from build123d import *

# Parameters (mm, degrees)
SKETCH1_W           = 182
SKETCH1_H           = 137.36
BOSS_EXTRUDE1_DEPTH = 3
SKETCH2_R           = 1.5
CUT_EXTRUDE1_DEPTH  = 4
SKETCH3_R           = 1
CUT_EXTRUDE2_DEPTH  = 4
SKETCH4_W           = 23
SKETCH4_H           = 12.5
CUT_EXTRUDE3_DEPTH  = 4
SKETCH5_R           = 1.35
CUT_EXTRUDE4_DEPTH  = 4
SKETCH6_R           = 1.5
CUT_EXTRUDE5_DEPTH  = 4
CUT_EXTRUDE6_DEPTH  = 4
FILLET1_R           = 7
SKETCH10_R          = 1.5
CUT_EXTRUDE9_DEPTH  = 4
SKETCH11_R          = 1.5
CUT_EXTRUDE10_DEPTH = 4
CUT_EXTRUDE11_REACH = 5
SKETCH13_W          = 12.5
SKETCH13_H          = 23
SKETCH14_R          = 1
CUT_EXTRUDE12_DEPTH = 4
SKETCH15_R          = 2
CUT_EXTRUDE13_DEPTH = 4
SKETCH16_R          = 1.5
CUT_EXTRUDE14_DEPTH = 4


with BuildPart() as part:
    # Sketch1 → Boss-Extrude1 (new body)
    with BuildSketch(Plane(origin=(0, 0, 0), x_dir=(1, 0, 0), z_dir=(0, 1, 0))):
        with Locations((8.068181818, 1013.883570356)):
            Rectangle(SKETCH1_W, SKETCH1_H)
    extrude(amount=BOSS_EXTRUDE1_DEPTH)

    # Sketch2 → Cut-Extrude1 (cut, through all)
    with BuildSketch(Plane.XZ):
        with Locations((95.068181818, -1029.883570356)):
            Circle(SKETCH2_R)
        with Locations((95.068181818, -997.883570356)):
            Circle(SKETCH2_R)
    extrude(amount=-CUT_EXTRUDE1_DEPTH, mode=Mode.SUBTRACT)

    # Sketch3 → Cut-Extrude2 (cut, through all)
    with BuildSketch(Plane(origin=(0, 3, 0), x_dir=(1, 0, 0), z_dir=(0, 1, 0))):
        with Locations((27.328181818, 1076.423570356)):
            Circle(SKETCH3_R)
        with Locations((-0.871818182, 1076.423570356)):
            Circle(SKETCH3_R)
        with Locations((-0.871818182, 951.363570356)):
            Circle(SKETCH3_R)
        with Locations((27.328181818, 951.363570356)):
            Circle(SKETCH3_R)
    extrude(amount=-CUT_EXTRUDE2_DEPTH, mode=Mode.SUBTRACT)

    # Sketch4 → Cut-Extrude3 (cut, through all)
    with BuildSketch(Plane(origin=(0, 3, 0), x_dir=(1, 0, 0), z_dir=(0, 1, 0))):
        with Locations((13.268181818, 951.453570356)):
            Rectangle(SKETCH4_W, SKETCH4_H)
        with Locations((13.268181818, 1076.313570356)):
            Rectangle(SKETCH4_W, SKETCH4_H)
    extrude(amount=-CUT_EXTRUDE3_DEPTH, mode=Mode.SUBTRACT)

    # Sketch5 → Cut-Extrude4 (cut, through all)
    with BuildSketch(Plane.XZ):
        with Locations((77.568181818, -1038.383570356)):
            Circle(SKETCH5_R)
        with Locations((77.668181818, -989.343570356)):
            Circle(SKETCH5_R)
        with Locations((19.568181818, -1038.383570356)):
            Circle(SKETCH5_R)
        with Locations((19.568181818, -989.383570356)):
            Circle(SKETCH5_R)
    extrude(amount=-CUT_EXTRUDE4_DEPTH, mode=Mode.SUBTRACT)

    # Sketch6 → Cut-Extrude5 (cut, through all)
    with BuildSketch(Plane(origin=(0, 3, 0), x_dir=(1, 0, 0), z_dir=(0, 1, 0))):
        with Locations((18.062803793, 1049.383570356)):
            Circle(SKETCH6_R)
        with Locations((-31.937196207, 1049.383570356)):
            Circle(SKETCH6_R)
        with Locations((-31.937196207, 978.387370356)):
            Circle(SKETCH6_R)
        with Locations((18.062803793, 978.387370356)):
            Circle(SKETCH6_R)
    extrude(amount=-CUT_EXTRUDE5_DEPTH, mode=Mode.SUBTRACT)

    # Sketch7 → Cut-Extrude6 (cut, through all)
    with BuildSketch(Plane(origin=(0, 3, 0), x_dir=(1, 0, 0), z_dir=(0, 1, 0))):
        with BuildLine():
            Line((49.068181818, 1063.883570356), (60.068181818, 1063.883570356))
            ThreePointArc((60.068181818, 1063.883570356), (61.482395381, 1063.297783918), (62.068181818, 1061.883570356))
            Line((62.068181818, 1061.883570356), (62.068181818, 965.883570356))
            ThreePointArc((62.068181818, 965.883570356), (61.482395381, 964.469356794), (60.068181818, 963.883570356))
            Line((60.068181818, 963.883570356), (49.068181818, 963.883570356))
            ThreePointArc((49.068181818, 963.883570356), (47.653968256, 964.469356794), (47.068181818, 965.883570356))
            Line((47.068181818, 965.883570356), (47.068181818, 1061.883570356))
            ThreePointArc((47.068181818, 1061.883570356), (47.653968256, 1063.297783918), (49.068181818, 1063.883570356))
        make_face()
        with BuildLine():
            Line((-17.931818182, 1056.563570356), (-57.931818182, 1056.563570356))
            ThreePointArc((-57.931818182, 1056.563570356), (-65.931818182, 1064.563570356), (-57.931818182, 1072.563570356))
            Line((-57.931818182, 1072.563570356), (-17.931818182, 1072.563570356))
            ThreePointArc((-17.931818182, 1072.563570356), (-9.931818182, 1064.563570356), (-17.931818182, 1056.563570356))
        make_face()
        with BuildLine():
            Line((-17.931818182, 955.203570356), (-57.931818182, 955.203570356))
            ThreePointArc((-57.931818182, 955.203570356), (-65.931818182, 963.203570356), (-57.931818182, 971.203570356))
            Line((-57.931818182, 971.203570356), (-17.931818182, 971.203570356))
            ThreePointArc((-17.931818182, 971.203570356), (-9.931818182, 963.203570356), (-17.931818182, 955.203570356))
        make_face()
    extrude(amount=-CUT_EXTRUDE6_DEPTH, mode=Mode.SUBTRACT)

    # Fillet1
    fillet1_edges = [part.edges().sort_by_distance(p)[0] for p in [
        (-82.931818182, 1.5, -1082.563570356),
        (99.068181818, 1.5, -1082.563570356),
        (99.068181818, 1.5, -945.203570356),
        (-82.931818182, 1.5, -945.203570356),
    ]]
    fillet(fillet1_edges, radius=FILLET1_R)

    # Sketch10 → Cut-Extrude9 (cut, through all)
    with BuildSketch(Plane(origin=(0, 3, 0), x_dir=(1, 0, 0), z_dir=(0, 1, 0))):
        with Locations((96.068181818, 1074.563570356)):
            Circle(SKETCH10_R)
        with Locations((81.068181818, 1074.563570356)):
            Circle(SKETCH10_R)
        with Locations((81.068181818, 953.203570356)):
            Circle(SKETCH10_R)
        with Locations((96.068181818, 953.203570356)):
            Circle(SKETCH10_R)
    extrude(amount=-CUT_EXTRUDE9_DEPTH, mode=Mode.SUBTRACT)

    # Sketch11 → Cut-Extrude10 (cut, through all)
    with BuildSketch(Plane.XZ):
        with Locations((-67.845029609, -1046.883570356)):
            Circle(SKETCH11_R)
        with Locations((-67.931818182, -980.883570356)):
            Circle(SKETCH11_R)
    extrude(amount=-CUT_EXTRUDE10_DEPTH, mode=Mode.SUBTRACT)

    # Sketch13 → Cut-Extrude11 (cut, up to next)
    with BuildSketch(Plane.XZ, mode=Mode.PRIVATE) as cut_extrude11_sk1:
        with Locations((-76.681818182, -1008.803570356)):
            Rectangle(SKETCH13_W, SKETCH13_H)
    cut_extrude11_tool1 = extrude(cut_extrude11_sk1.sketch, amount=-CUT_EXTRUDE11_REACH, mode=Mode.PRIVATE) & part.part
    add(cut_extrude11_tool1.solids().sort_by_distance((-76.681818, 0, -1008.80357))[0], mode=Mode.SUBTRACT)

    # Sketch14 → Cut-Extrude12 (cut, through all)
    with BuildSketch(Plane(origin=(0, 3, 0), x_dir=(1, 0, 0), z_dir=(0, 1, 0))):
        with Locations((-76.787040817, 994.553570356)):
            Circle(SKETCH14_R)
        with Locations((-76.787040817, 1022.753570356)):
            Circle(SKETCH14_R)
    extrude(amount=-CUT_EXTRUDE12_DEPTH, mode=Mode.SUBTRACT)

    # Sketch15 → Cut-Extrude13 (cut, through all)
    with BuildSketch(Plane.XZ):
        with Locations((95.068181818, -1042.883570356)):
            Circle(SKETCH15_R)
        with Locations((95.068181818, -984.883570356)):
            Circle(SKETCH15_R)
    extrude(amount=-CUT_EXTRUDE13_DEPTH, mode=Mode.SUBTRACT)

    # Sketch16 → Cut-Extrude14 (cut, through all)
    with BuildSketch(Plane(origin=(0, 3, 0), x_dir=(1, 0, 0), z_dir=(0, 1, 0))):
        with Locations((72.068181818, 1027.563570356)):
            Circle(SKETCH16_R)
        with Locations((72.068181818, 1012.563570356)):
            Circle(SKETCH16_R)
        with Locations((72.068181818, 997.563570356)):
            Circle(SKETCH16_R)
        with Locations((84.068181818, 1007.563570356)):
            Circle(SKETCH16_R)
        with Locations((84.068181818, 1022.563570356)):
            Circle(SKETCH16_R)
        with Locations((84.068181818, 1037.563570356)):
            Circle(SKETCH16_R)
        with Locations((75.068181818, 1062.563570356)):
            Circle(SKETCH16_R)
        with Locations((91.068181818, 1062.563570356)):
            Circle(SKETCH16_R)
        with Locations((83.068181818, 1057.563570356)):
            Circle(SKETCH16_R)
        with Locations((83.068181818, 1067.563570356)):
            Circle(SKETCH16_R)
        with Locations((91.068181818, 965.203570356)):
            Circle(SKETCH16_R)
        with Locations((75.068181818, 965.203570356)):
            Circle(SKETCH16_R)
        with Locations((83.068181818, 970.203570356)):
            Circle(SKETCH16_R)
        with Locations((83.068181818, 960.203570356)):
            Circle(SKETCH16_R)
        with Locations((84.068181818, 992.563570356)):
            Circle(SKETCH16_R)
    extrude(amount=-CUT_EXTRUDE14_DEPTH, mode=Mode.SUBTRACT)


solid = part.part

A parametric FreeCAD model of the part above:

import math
import FreeCAD as App
import Part
import Sketcher

V = App.Vector


def edges_at(feature, points):
    """Names of the edges that pass closest to the given points."""
    edges = feature.Shape.Edges
    near = lambda p: min(range(len(edges)), key=lambda i: edges[i].distToShape(Part.Vertex(*p))[0])
    return sorted({f"Edge{near(p) + 1}" for p in points})

doc = App.newDocument("Part")
body = doc.addObject("PartDesign::Body", "Body")

sketch1 = body.newObject("Sketcher::SketchObject", "Sketch")
sketch1.AttachmentSupport = (doc.getObject("XZ_Plane"), [""])
sketch1.MapMode = "FlatFace"
sketch1.addGeometry(Part.LineSegment(V(-83, -1083, 0), V(-83, -945, 0)), False)
sketch1.addGeometry(Part.LineSegment(V(-83, -945, 0), V(99, -945, 0)), False)
sketch1.addGeometry(Part.LineSegment(V(99, -945, 0), V(99, -1083, 0)), False)
sketch1.addGeometry(Part.LineSegment(V(99, -1083, 0), V(-83, -1083, 0)), False)
sketch1.addConstraint(Sketcher.Constraint("Coincident", 0, 2, 1, 1))
sketch1.addConstraint(Sketcher.Constraint("Coincident", 1, 2, 2, 1))
sketch1.addConstraint(Sketcher.Constraint("Coincident", 2, 2, 3, 1))
sketch1.addConstraint(Sketcher.Constraint("Coincident", 3, 2, 0, 1))
sketch1.addConstraint(Sketcher.Constraint("Vertical", 0))
sketch1.addConstraint(Sketcher.Constraint("Horizontal", 1))
sketch1.addConstraint(Sketcher.Constraint("Vertical", 2))
sketch1.addConstraint(Sketcher.Constraint("Horizontal", 3))
sketch1.addConstraint(Sketcher.Constraint("DistanceX", 1, 1, 1, 2, 182.0))
sketch1.addConstraint(Sketcher.Constraint("DistanceY", 0, 1, 0, 2, 137.36))
sketch1.addConstraint(Sketcher.Constraint("DistanceX", 0, 2, -1, 1, 82.931818))
sketch1.addConstraint(Sketcher.Constraint("DistanceY", 0, 2, -1, 1, 945.20357))
pad1 = body.newObject("PartDesign::Pad", "Pad")
pad1.Profile = sketch1
pad1.Length = 3
pad1.Reversed = True

sketch2 = body.newObject("Sketcher::SketchObject", "Sketch001")
sketch2.AttachmentSupport = (doc.getObject("XZ_Plane"), [""])
sketch2.MapMode = "FlatFace"
sketch2.addGeometry(Part.Circle(V(95.1, -1029.9, 0), V(0, 0, 1), 1.5), False)
sketch2.addGeometry(Part.Circle(V(95.1, -997.9, 0), V(0, 0, 1), 1.5), False)
sketch2.addConstraint(Sketcher.Constraint("Equal", 0, 1))
sketch2.addConstraint(Sketcher.Constraint("Vertical", 0, 3, 1, 3))
sketch2.addConstraint(Sketcher.Constraint("Diameter", 0, 3.0))
sketch2.addConstraint(Sketcher.Constraint("DistanceY", 0, 3, 1, 3, 32.0))
sketch2.addConstraint(Sketcher.Constraint("DistanceX", -1, 1, 0, 3, 95.068182))
sketch2.addConstraint(Sketcher.Constraint("DistanceY", 0, 3, -1, 1, 1029.88357))
pocket1 = body.newObject("PartDesign::Pocket", "Pocket")
pocket1.Profile = sketch2
pocket1.Type = "ThroughAll"

sketch3 = body.newObject("Sketcher::SketchObject", "Sketch002")
sketch3.AttachmentSupport = (doc.getObject("XZ_Plane"), [""])
sketch3.MapMode = "FlatFace"
sketch3.AttachmentOffset = App.Placement(V(0, 0, -3), App.Rotation())
sketch3.addGeometry(Part.Circle(V(27.3, -1076.4, 0), V(0, 0, 1), 1), False)
sketch3.addGeometry(Part.Circle(V(-0.9, -1076.4, 0), V(0, 0, 1), 1), False)
sketch3.addGeometry(Part.Circle(V(-0.9, -951.4, 0), V(0, 0, 1), 1), False)
sketch3.addGeometry(Part.Circle(V(27.3, -951.4, 0), V(0, 0, 1), 1), False)
sketch3.addConstraint(Sketcher.Constraint("Equal", 0, 1))
sketch3.addConstraint(Sketcher.Constraint("Equal", 1, 2))
sketch3.addConstraint(Sketcher.Constraint("Equal", 2, 3))
sketch3.addConstraint(Sketcher.Constraint("Horizontal", 0, 3, 1, 3))
sketch3.addConstraint(Sketcher.Constraint("Horizontal", 2, 3, 3, 3))
sketch3.addConstraint(Sketcher.Constraint("Vertical", 1, 3, 2, 3))
sketch3.addConstraint(Sketcher.Constraint("Vertical", 0, 3, 3, 3))
sketch3.addConstraint(Sketcher.Constraint("Diameter", 0, 2.0))
sketch3.addConstraint(Sketcher.Constraint("DistanceX", 1, 3, 0, 3, 28.2))
sketch3.addConstraint(Sketcher.Constraint("DistanceY", 1, 3, 2, 3, 125.06))
sketch3.addConstraint(Sketcher.Constraint("DistanceX", -1, 1, 0, 3, 27.328182))
sketch3.addConstraint(Sketcher.Constraint("DistanceY", 0, 3, -1, 1, 1076.42357))
pocket2 = body.newObject("PartDesign::Pocket", "Pocket001")
pocket2.Profile = sketch3
pocket2.Type = "ThroughAll"
pocket2.Reversed = True

sketch4 = body.newObject("Sketcher::SketchObject", "Sketch003")
sketch4.AttachmentSupport = (doc.getObject("XZ_Plane"), [""])
sketch4.MapMode = "FlatFace"
sketch4.AttachmentOffset = App.Placement(V(0, 0, -3), App.Rotation())
sketch4.addGeometry(Part.LineSegment(V(2, -958, 0), V(2, -945, 0)), False)
sketch4.addGeometry(Part.LineSegment(V(2, -945, 0), V(25, -945, 0)), False)
sketch4.addGeometry(Part.LineSegment(V(25, -945, 0), V(25, -958, 0)), False)
sketch4.addGeometry(Part.LineSegment(V(25, -958, 0), V(2, -958, 0)), False)
sketch4.addGeometry(Part.LineSegment(V(2, -1083, 0), V(2, -1070, 0)), False)
sketch4.addGeometry(Part.LineSegment(V(2, -1070, 0), V(25, -1070, 0)), False)
sketch4.addGeometry(Part.LineSegment(V(25, -1070, 0), V(25, -1083, 0)), False)
sketch4.addGeometry(Part.LineSegment(V(25, -1083, 0), V(2, -1083, 0)), False)
sketch4.addConstraint(Sketcher.Constraint("Coincident", 0, 2, 1, 1))
sketch4.addConstraint(Sketcher.Constraint("Coincident", 1, 2, 2, 1))
sketch4.addConstraint(Sketcher.Constraint("Coincident", 2, 2, 3, 1))
sketch4.addConstraint(Sketcher.Constraint("Coincident", 3, 2, 0, 1))
sketch4.addConstraint(Sketcher.Constraint("Coincident", 4, 2, 5, 1))
sketch4.addConstraint(Sketcher.Constraint("Coincident", 5, 2, 6, 1))
sketch4.addConstraint(Sketcher.Constraint("Coincident", 6, 2, 7, 1))
sketch4.addConstraint(Sketcher.Constraint("Coincident", 7, 2, 4, 1))
sketch4.addConstraint(Sketcher.Constraint("Vertical", 0))
sketch4.addConstraint(Sketcher.Constraint("Horizontal", 1))
sketch4.addConstraint(Sketcher.Constraint("Vertical", 2))
sketch4.addConstraint(Sketcher.Constraint("Horizontal", 3))
sketch4.addConstraint(Sketcher.Constraint("Vertical", 4))
sketch4.addConstraint(Sketcher.Constraint("Horizontal", 5))
sketch4.addConstraint(Sketcher.Constraint("Vertical", 6))
sketch4.addConstraint(Sketcher.Constraint("Horizontal", 7))
sketch4.addConstraint(Sketcher.Constraint("Vertical", 3, 2, 4, 2))
sketch4.addConstraint(Sketcher.Constraint("Vertical", 2, 2, 5, 2))
sketch4.addConstraint(Sketcher.Constraint("Equal", 2, 4))
sketch4.addConstraint(Sketcher.Constraint("DistanceX", 1, 1, 1, 2, 23.0))
sketch4.addConstraint(Sketcher.Constraint("DistanceY", 0, 1, 0, 2, 12.5))
sketch4.addConstraint(Sketcher.Constraint("DistanceY", 4, 2, 3, 2, 112.36))
sketch4.addConstraint(Sketcher.Constraint("DistanceX", -1, 1, 0, 2, 1.768182))
sketch4.addConstraint(Sketcher.Constraint("DistanceY", 0, 2, -1, 1, 945.20357))
pocket3 = body.newObject("PartDesign::Pocket", "Pocket002")
pocket3.Profile = sketch4
pocket3.Type = "ThroughAll"
pocket3.Reversed = True

sketch5 = body.newObject("Sketcher::SketchObject", "Sketch004")
sketch5.AttachmentSupport = (doc.getObject("XZ_Plane"), [""])
sketch5.MapMode = "FlatFace"
sketch5.addGeometry(Part.Circle(V(77.6, -1038.4, 0), V(0, 0, 1), 1.4), False)
sketch5.addGeometry(Part.Circle(V(77.7, -989.3, 0), V(0, 0, 1), 1.4), False)
sketch5.addGeometry(Part.Circle(V(19.6, -1038.4, 0), V(0, 0, 1), 1.4), False)
sketch5.addGeometry(Part.Circle(V(19.6, -989.4, 0), V(0, 0, 1), 1.4), False)
sketch5.addConstraint(Sketcher.Constraint("Equal", 0, 1))
sketch5.addConstraint(Sketcher.Constraint("Equal", 1, 2))
sketch5.addConstraint(Sketcher.Constraint("Equal", 2, 3))
sketch5.addConstraint(Sketcher.Constraint("Horizontal", 0, 3, 2, 3))
sketch5.addConstraint(Sketcher.Constraint("Vertical", 2, 3, 3, 3))
sketch5.addConstraint(Sketcher.Constraint("Diameter", 0, 2.7))
sketch5.addConstraint(Sketcher.Constraint("DistanceX", 2, 3, 0, 3, 58.0))
sketch5.addConstraint(Sketcher.Constraint("DistanceY", 2, 3, 3, 3, 49.0))
sketch5.addConstraint(Sketcher.Constraint("DistanceX", 0, 3, 1, 3, 0.1))
sketch5.addConstraint(Sketcher.Constraint("DistanceY", 0, 3, 1, 3, 49.04))
sketch5.addConstraint(Sketcher.Constraint("DistanceX", -1, 1, 0, 3, 77.568182))
sketch5.addConstraint(Sketcher.Constraint("DistanceY", 0, 3, -1, 1, 1038.38357))
pocket4 = body.newObject("PartDesign::Pocket", "Pocket003")
pocket4.Profile = sketch5
pocket4.Type = "ThroughAll"

sketch6 = body.newObject("Sketcher::SketchObject", "Sketch005")
sketch6.AttachmentSupport = (doc.getObject("XZ_Plane"), [""])
sketch6.MapMode = "FlatFace"
sketch6.AttachmentOffset = App.Placement(V(0, 0, -3), App.Rotation())
sketch6.addGeometry(Part.Circle(V(18.1, -1049.4, 0), V(0, 0, 1), 1.5), False)
sketch6.addGeometry(Part.Circle(V(-31.9, -1049.4, 0), V(0, 0, 1), 1.5), False)
sketch6.addGeometry(Part.Circle(V(-31.9, -978.4, 0), V(0, 0, 1), 1.5), False)
sketch6.addGeometry(Part.Circle(V(18.1, -978.4, 0), V(0, 0, 1), 1.5), False)
sketch6.addConstraint(Sketcher.Constraint("Equal", 0, 1))
sketch6.addConstraint(Sketcher.Constraint("Equal", 1, 2))
sketch6.addConstraint(Sketcher.Constraint("Equal", 2, 3))
sketch6.addConstraint(Sketcher.Constraint("Horizontal", 0, 3, 1, 3))
sketch6.addConstraint(Sketcher.Constraint("Horizontal", 2, 3, 3, 3))
sketch6.addConstraint(Sketcher.Constraint("Vertical", 1, 3, 2, 3))
sketch6.addConstraint(Sketcher.Constraint("Vertical", 0, 3, 3, 3))
sketch6.addConstraint(Sketcher.Constraint("Diameter", 0, 3.0))
sketch6.addConstraint(Sketcher.Constraint("DistanceX", 1, 3, 0, 3, 50.0))
sketch6.addConstraint(Sketcher.Constraint("DistanceY", 1, 3, 2, 3, 70.9962))
sketch6.addConstraint(Sketcher.Constraint("DistanceY", 0, 3, -1, 1, 1049.38357))
sketch6.addConstraint(Sketcher.Constraint("DistanceX", -1, 1, 0, 3, 18.062804))
pocket5 = body.newObject("PartDesign::Pocket", "Pocket004")
pocket5.Profile = sketch6
pocket5.Type = "ThroughAll"
pocket5.Reversed = True

sketch7 = body.newObject("Sketcher::SketchObject", "Sketch006")
sketch7.AttachmentSupport = (doc.getObject("XZ_Plane"), [""])
sketch7.MapMode = "FlatFace"
sketch7.AttachmentOffset = App.Placement(V(0, 0, -3), App.Rotation())
sketch7.addGeometry(Part.LineSegment(V(60.1, -1063.9, 0), V(49.1, -1063.9, 0)), False)
sketch7.addGeometry(Part.ArcOfCircle(Part.Circle(V(49.1, -1061.9, 0), V(0, 0, 1), 2), math.radians(-180), math.radians(-90)), False)
sketch7.addGeometry(Part.LineSegment(V(47.1, -1061.9, 0), V(47.1, -965.9, 0)), False)
sketch7.addGeometry(Part.ArcOfCircle(Part.Circle(V(49.1, -965.9, 0), V(0, 0, 1), 2), math.radians(90), math.radians(180)), False)
sketch7.addGeometry(Part.LineSegment(V(49.1, -963.9, 0), V(60.1, -963.9, 0)), False)
sketch7.addGeometry(Part.ArcOfCircle(Part.Circle(V(60.1, -965.9, 0), V(0, 0, 1), 2), math.radians(0), math.radians(90)), False)
sketch7.addGeometry(Part.LineSegment(V(62.1, -965.9, 0), V(62.1, -1061.9, 0)), False)
sketch7.addGeometry(Part.ArcOfCircle(Part.Circle(V(60.1, -1061.9, 0), V(0, 0, 1), 2), math.radians(-90), math.radians(0)), False)
sketch7.addGeometry(Part.LineSegment(V(-57.9, -1056.6, 0), V(-17.9, -1056.6, 0)), False)
sketch7.addGeometry(Part.ArcOfCircle(Part.Circle(V(-17.9, -1064.6, 0), V(0, 0, 1), 8), math.radians(-90), math.radians(90)), False)
sketch7.addGeometry(Part.LineSegment(V(-17.9, -1072.6, 0), V(-57.9, -1072.6, 0)), False)
sketch7.addGeometry(Part.ArcOfCircle(Part.Circle(V(-57.9, -1064.6, 0), V(0, 0, 1), 8), math.radians(90), math.radians(270)), False)
sketch7.addGeometry(Part.LineSegment(V(-57.9, -955.2, 0), V(-17.9, -955.2, 0)), False)
sketch7.addGeometry(Part.ArcOfCircle(Part.Circle(V(-17.9, -963.2, 0), V(0, 0, 1), 8), math.radians(-90), math.radians(90)), False)
sketch7.addGeometry(Part.LineSegment(V(-17.9, -971.2, 0), V(-57.9, -971.2, 0)), False)
sketch7.addGeometry(Part.ArcOfCircle(Part.Circle(V(-57.9, -963.2, 0), V(0, 0, 1), 8), math.radians(90), math.radians(270)), False)
sketch7.addConstraint(Sketcher.Constraint("Tangent", 0, 2, 1, 2))
sketch7.addConstraint(Sketcher.Constraint("Tangent", 1, 1, 2, 1))
sketch7.addConstraint(Sketcher.Constraint("Tangent", 2, 2, 3, 2))
sketch7.addConstraint(Sketcher.Constraint("Tangent", 3, 1, 4, 1))
sketch7.addConstraint(Sketcher.Constraint("Tangent", 4, 2, 5, 2))
sketch7.addConstraint(Sketcher.Constraint("Tangent", 5, 1, 6, 1))
sketch7.addConstraint(Sketcher.Constraint("Tangent", 6, 2, 7, 2))
sketch7.addConstraint(Sketcher.Constraint("Tangent", 7, 1, 0, 1))
sketch7.addConstraint(Sketcher.Constraint("Tangent", 8, 2, 9, 2))
sketch7.addConstraint(Sketcher.Constraint("Tangent", 9, 1, 10, 1))
sketch7.addConstraint(Sketcher.Constraint("Tangent", 10, 2, 11, 2))
sketch7.addConstraint(Sketcher.Constraint("Tangent", 11, 1, 8, 1))
sketch7.addConstraint(Sketcher.Constraint("Tangent", 12, 2, 13, 2))
sketch7.addConstraint(Sketcher.Constraint("Tangent", 13, 1, 14, 1))
sketch7.addConstraint(Sketcher.Constraint("Tangent", 14, 2, 15, 2))
sketch7.addConstraint(Sketcher.Constraint("Tangent", 15, 1, 12, 1))
sketch7.addConstraint(Sketcher.Constraint("Horizontal", 0))
sketch7.addConstraint(Sketcher.Constraint("Vertical", 2))
sketch7.addConstraint(Sketcher.Constraint("Horizontal", 4))
sketch7.addConstraint(Sketcher.Constraint("Vertical", 6))
sketch7.addConstraint(Sketcher.Constraint("Horizontal", 8))
sketch7.addConstraint(Sketcher.Constraint("Horizontal", 10))
sketch7.addConstraint(Sketcher.Constraint("Horizontal", 12))
sketch7.addConstraint(Sketcher.Constraint("Horizontal", 14))
sketch7.addConstraint(Sketcher.Constraint("Equal", 1, 3))
sketch7.addConstraint(Sketcher.Constraint("Equal", 3, 5))
sketch7.addConstraint(Sketcher.Constraint("Equal", 5, 7))
sketch7.addConstraint(Sketcher.Constraint("Equal", 11, 13))
sketch7.addConstraint(Sketcher.Constraint("Vertical", 9, 3, 13, 3))
sketch7.addConstraint(Sketcher.Constraint("Vertical", 11, 3, 15, 3))
sketch7.addConstraint(Sketcher.Constraint("Radius", 1, 2.0))
sketch7.addConstraint(Sketcher.Constraint("Radius", 9, 8.0))
sketch7.addConstraint(Sketcher.Constraint("DistanceX", 0, 2, 0, 1, 11.0))
sketch7.addConstraint(Sketcher.Constraint("DistanceX", 8, 1, 8, 2, 40.0))
sketch7.addConstraint(Sketcher.Constraint("DistanceY", 2, 1, 2, 2, 96.0))
sketch7.addConstraint(Sketcher.Constraint("DistanceX", 9, 3, 1, 3, 67.0))
sketch7.addConstraint(Sketcher.Constraint("DistanceY", 9, 3, 1, 3, 2.68))
sketch7.addConstraint(Sketcher.Constraint("DistanceY", 3, 3, 13, 3, 2.68))
sketch7.addConstraint(Sketcher.Constraint("DistanceX", -1, 1, 1, 3, 49.068182))
sketch7.addConstraint(Sketcher.Constraint("DistanceY", 1, 3, -1, 1, 1061.88357))
pocket6 = body.newObject("PartDesign::Pocket", "Pocket005")
pocket6.Profile = sketch7
pocket6.Type = "ThroughAll"
pocket6.Reversed = True
doc.recompute()

fillet = body.newObject("PartDesign::Fillet", "Fillet")
fillet.Base = (pocket6, edges_at(pocket6, [
    (-82.932, 1.5, -1082.564),
    (99.068, 1.5, -1082.564),
    (99.068, 1.5, -945.204),
    (-82.932, 1.5, -945.204),
]))
fillet.Radius = 7

sketch8 = body.newObject("Sketcher::SketchObject", "Sketch007")
sketch8.AttachmentSupport = (doc.getObject("XZ_Plane"), [""])
sketch8.MapMode = "FlatFace"
sketch8.AttachmentOffset = App.Placement(V(0, 0, -3), App.Rotation())
sketch8.addGeometry(Part.Circle(V(96.1, -1074.6, 0), V(0, 0, 1), 1.5), False)
sketch8.addGeometry(Part.Circle(V(81.1, -1074.6, 0), V(0, 0, 1), 1.5), False)
sketch8.addGeometry(Part.Circle(V(81.1, -953.2, 0), V(0, 0, 1), 1.5), False)
sketch8.addGeometry(Part.Circle(V(96.1, -953.2, 0), V(0, 0, 1), 1.5), False)
sketch8.addConstraint(Sketcher.Constraint("Equal", 0, 1))
sketch8.addConstraint(Sketcher.Constraint("Equal", 1, 2))
sketch8.addConstraint(Sketcher.Constraint("Equal", 2, 3))
sketch8.addConstraint(Sketcher.Constraint("Horizontal", 0, 3, 1, 3))
sketch8.addConstraint(Sketcher.Constraint("Horizontal", 2, 3, 3, 3))
sketch8.addConstraint(Sketcher.Constraint("Vertical", 1, 3, 2, 3))
sketch8.addConstraint(Sketcher.Constraint("Vertical", 0, 3, 3, 3))
sketch8.addConstraint(Sketcher.Constraint("Diameter", 0, 3.0))
sketch8.addConstraint(Sketcher.Constraint("DistanceX", 1, 3, 0, 3, 15.0))
sketch8.addConstraint(Sketcher.Constraint("DistanceY", 1, 3, 2, 3, 121.36))
sketch8.addConstraint(Sketcher.Constraint("DistanceX", -1, 1, 0, 3, 96.068182))
sketch8.addConstraint(Sketcher.Constraint("DistanceY", 0, 3, -1, 1, 1074.56357))
pocket7 = body.newObject("PartDesign::Pocket", "Pocket006")
pocket7.Profile = sketch8
pocket7.Type = "ThroughAll"
pocket7.Reversed = True

sketch9 = body.newObject("Sketcher::SketchObject", "Sketch008")
sketch9.AttachmentSupport = (doc.getObject("XZ_Plane"), [""])
sketch9.MapMode = "FlatFace"
sketch9.addGeometry(Part.Circle(V(-67.8, -1046.9, 0), V(0, 0, 1), 1.5), False)
sketch9.addGeometry(Part.Circle(V(-67.9, -980.9, 0), V(0, 0, 1), 1.5), False)
sketch9.addConstraint(Sketcher.Constraint("Equal", 0, 1))
sketch9.addConstraint(Sketcher.Constraint("Diameter", 0, 3.0))
sketch9.addConstraint(Sketcher.Constraint("DistanceY", 0, 3, 1, 3, 66.0))
sketch9.addConstraint(Sketcher.Constraint("DistanceX", 0, 3, -1, 1, 67.84503))
sketch9.addConstraint(Sketcher.Constraint("DistanceY", 0, 3, -1, 1, 1046.88357))
sketch9.addConstraint(Sketcher.Constraint("DistanceX", 1, 3, -1, 1, 67.931818))
pocket8 = body.newObject("PartDesign::Pocket", "Pocket007")
pocket8.Profile = sketch9
pocket8.Type = "ThroughAll"

sketch10 = body.newObject("Sketcher::SketchObject", "Sketch009")
sketch10.AttachmentSupport = (doc.getObject("XZ_Plane"), [""])
sketch10.MapMode = "FlatFace"
sketch10.addGeometry(Part.LineSegment(V(-83, -997, 0), V(-83, -1020, 0)), False)
sketch10.addGeometry(Part.LineSegment(V(-83, -1020, 0), V(-70, -1020, 0)), False)
sketch10.addGeometry(Part.LineSegment(V(-70, -1020, 0), V(-70, -997, 0)), False)
sketch10.addGeometry(Part.LineSegment(V(-70, -997, 0), V(-83, -997, 0)), False)
sketch10.addConstraint(Sketcher.Constraint("Coincident", 0, 2, 1, 1))
sketch10.addConstraint(Sketcher.Constraint("Coincident", 1, 2, 2, 1))
sketch10.addConstraint(Sketcher.Constraint("Coincident", 2, 2, 3, 1))
sketch10.addConstraint(Sketcher.Constraint("Coincident", 3, 2, 0, 1))
sketch10.addConstraint(Sketcher.Constraint("Vertical", 0))
sketch10.addConstraint(Sketcher.Constraint("Horizontal", 1))
sketch10.addConstraint(Sketcher.Constraint("Vertical", 2))
sketch10.addConstraint(Sketcher.Constraint("Horizontal", 3))
sketch10.addConstraint(Sketcher.Constraint("DistanceY", 0, 2, 0, 1, 23.0))
sketch10.addConstraint(Sketcher.Constraint("DistanceX", 1, 1, 1, 2, 12.5))
sketch10.addConstraint(Sketcher.Constraint("DistanceX", 0, 2, -1, 1, 82.931818))
sketch10.addConstraint(Sketcher.Constraint("DistanceY", 0, 2, -1, 1, 1020.30357))
pocket9 = body.newObject("PartDesign::Pocket", "Pocket008")
pocket9.Profile = sketch10
pocket9.Type = "UpToFirst"

sketch11 = body.newObject("Sketcher::SketchObject", "Sketch010")
sketch11.AttachmentSupport = (doc.getObject("XZ_Plane"), [""])
sketch11.MapMode = "FlatFace"
sketch11.AttachmentOffset = App.Placement(V(0, 0, -3), App.Rotation())
sketch11.addGeometry(Part.Circle(V(-76.8, -994.6, 0), V(0, 0, 1), 1), False)
sketch11.addGeometry(Part.Circle(V(-76.8, -1022.8, 0), V(0, 0, 1), 1), False)
sketch11.addConstraint(Sketcher.Constraint("Equal", 0, 1))
sketch11.addConstraint(Sketcher.Constraint("Vertical", 0, 3, 1, 3))
sketch11.addConstraint(Sketcher.Constraint("Diameter", 0, 2.0))
sketch11.addConstraint(Sketcher.Constraint("DistanceY", 1, 3, 0, 3, 28.2))
sketch11.addConstraint(Sketcher.Constraint("DistanceX", 0, 3, -1, 1, 76.787041))
sketch11.addConstraint(Sketcher.Constraint("DistanceY", 0, 3, -1, 1, 994.55357))
pocket10 = body.newObject("PartDesign::Pocket", "Pocket009")
pocket10.Profile = sketch11
pocket10.Type = "ThroughAll"
pocket10.Reversed = True

sketch12 = body.newObject("Sketcher::SketchObject", "Sketch011")
sketch12.AttachmentSupport = (doc.getObject("XZ_Plane"), [""])
sketch12.MapMode = "FlatFace"
sketch12.addGeometry(Part.Circle(V(95.1, -1042.9, 0), V(0, 0, 1), 2), False)
sketch12.addGeometry(Part.Circle(V(95.1, -984.9, 0), V(0, 0, 1), 2), False)
sketch12.addConstraint(Sketcher.Constraint("Equal", 0, 1))
sketch12.addConstraint(Sketcher.Constraint("Vertical", 0, 3, 1, 3))
sketch12.addConstraint(Sketcher.Constraint("Diameter", 0, 4.0))
sketch12.addConstraint(Sketcher.Constraint("DistanceY", 0, 3, 1, 3, 58.0))
sketch12.addConstraint(Sketcher.Constraint("DistanceX", -1, 1, 0, 3, 95.068182))
sketch12.addConstraint(Sketcher.Constraint("DistanceY", 0, 3, -1, 1, 1042.88357))
pocket11 = body.newObject("PartDesign::Pocket", "Pocket010")
pocket11.Profile = sketch12
pocket11.Type = "ThroughAll"

sketch13 = body.newObject("Sketcher::SketchObject", "Sketch012")
sketch13.AttachmentSupport = (doc.getObject("XZ_Plane"), [""])
sketch13.MapMode = "FlatFace"
sketch13.AttachmentOffset = App.Placement(V(0, 0, -3), App.Rotation())
sketch13.addGeometry(Part.Circle(V(72.1, -1027.6, 0), V(0, 0, 1), 1.5), False)
sketch13.addGeometry(Part.Circle(V(72.1, -1012.6, 0), V(0, 0, 1), 1.5), False)
sketch13.addGeometry(Part.Circle(V(72.1, -997.6, 0), V(0, 0, 1), 1.5), False)
sketch13.addGeometry(Part.Circle(V(84.1, -1007.6, 0), V(0, 0, 1), 1.5), False)
sketch13.addGeometry(Part.Circle(V(84.1, -1022.6, 0), V(0, 0, 1), 1.5), False)
sketch13.addGeometry(Part.Circle(V(84.1, -1037.6, 0), V(0, 0, 1), 1.5), False)
sketch13.addGeometry(Part.Circle(V(75.1, -1062.6, 0), V(0, 0, 1), 1.5), False)
sketch13.addGeometry(Part.Circle(V(91.1, -1062.6, 0), V(0, 0, 1), 1.5), False)
sketch13.addGeometry(Part.Circle(V(83.1, -1057.6, 0), V(0, 0, 1), 1.5), False)
sketch13.addGeometry(Part.Circle(V(83.1, -1067.6, 0), V(0, 0, 1), 1.5), False)
sketch13.addGeometry(Part.Circle(V(91.1, -965.2, 0), V(0, 0, 1), 1.5), False)
sketch13.addGeometry(Part.Circle(V(75.1, -965.2, 0), V(0, 0, 1), 1.5), False)
sketch13.addGeometry(Part.Circle(V(83.1, -970.2, 0), V(0, 0, 1), 1.5), False)
sketch13.addGeometry(Part.Circle(V(83.1, -960.2, 0), V(0, 0, 1), 1.5), False)
sketch13.addGeometry(Part.Circle(V(84.1, -992.6, 0), V(0, 0, 1), 1.5), False)
sketch13.addConstraint(Sketcher.Constraint("Equal", 0, 1))
sketch13.addConstraint(Sketcher.Constraint("Equal", 1, 2))
sketch13.addConstraint(Sketcher.Constraint("Equal", 2, 3))
sketch13.addConstraint(Sketcher.Constraint("Equal", 3, 4))
sketch13.addConstraint(Sketcher.Constraint("Equal", 4, 5))
sketch13.addConstraint(Sketcher.Constraint("Equal", 5, 6))
sketch13.addConstraint(Sketcher.Constraint("Equal", 6, 7))
sketch13.addConstraint(Sketcher.Constraint("Equal", 7, 8))
sketch13.addConstraint(Sketcher.Constraint("Equal", 8, 9))
sketch13.addConstraint(Sketcher.Constraint("Equal", 9, 10))
sketch13.addConstraint(Sketcher.Constraint("Equal", 10, 11))
sketch13.addConstraint(Sketcher.Constraint("Equal", 11, 12))
sketch13.addConstraint(Sketcher.Constraint("Equal", 12, 13))
sketch13.addConstraint(Sketcher.Constraint("Equal", 13, 14))
sketch13.addConstraint(Sketcher.Constraint("Horizontal", 6, 3, 7, 3))
sketch13.addConstraint(Sketcher.Constraint("Horizontal", 10, 3, 11, 3))
sketch13.addConstraint(Sketcher.Constraint("Vertical", 0, 3, 1, 3))
sketch13.addConstraint(Sketcher.Constraint("Vertical", 1, 3, 2, 3))
sketch13.addConstraint(Sketcher.Constraint("Vertical", 3, 3, 4, 3))
sketch13.addConstraint(Sketcher.Constraint("Vertical", 4, 3, 5, 3))
sketch13.addConstraint(Sketcher.Constraint("Vertical", 8, 3, 9, 3))
sketch13.addConstraint(Sketcher.Constraint("Vertical", 7, 3, 10, 3))
sketch13.addConstraint(Sketcher.Constraint("Vertical", 6, 3, 11, 3))
sketch13.addConstraint(Sketcher.Constraint("Vertical", 9, 3, 12, 3))
sketch13.addConstraint(Sketcher.Constraint("Vertical", 12, 3, 13, 3))
sketch13.addConstraint(Sketcher.Constraint("Vertical", 5, 3, 14, 3))
sketch13.addConstraint(Sketcher.Constraint("Diameter", 0, 3.0))
sketch13.addConstraint(Sketcher.Constraint("DistanceY", 0, 3, 1, 3, 15.0))
sketch13.addConstraint(Sketcher.Constraint("DistanceY", 1, 3, 2, 3, 15.0))
sketch13.addConstraint(Sketcher.Constraint("DistanceX", 1, 3, 3, 3, 12.0))
sketch13.addConstraint(Sketcher.Constraint("DistanceY", 1, 3, 3, 3, 5.0))
sketch13.addConstraint(Sketcher.Constraint("DistanceY", 0, 3, 4, 3, 5.0))
sketch13.addConstraint(Sketcher.Constraint("DistanceY", 5, 3, 4, 3, 15.0))
sketch13.addConstraint(Sketcher.Constraint("DistanceX", 6, 3, 5, 3, 9.0))
sketch13.addConstraint(Sketcher.Constraint("DistanceY", 6, 3, 5, 3, 25.0))
sketch13.addConstraint(Sketcher.Constraint("DistanceX", 6, 3, 7, 3, 16.0))
sketch13.addConstraint(Sketcher.Constraint("DistanceX", 6, 3, 8, 3, 8.0))
sketch13.addConstraint(Sketcher.Constraint("DistanceY", 6, 3, 8, 3, 5.0))
sketch13.addConstraint(Sketcher.Constraint("DistanceY", 9, 3, 6, 3, 5.0))
sketch13.addConstraint(Sketcher.Constraint("DistanceY", 12, 3, 10, 3, 5.0))
sketch13.addConstraint(Sketcher.Constraint("DistanceY", 10, 3, 13, 3, 5.0))
sketch13.addConstraint(Sketcher.Constraint("DistanceY", 2, 3, 14, 3, 5.0))
sketch13.addConstraint(Sketcher.Constraint("DistanceY", 2, 3, 10, 3, 32.36))
sketch13.addConstraint(Sketcher.Constraint("DistanceX", -1, 1, 0, 3, 72.068182))
sketch13.addConstraint(Sketcher.Constraint("DistanceY", 0, 3, -1, 1, 1027.56357))
pocket12 = body.newObject("PartDesign::Pocket", "Pocket011")
pocket12.Profile = sketch13
pocket12.Type = "ThroughAll"
pocket12.Reversed = True

doc.recompute()
